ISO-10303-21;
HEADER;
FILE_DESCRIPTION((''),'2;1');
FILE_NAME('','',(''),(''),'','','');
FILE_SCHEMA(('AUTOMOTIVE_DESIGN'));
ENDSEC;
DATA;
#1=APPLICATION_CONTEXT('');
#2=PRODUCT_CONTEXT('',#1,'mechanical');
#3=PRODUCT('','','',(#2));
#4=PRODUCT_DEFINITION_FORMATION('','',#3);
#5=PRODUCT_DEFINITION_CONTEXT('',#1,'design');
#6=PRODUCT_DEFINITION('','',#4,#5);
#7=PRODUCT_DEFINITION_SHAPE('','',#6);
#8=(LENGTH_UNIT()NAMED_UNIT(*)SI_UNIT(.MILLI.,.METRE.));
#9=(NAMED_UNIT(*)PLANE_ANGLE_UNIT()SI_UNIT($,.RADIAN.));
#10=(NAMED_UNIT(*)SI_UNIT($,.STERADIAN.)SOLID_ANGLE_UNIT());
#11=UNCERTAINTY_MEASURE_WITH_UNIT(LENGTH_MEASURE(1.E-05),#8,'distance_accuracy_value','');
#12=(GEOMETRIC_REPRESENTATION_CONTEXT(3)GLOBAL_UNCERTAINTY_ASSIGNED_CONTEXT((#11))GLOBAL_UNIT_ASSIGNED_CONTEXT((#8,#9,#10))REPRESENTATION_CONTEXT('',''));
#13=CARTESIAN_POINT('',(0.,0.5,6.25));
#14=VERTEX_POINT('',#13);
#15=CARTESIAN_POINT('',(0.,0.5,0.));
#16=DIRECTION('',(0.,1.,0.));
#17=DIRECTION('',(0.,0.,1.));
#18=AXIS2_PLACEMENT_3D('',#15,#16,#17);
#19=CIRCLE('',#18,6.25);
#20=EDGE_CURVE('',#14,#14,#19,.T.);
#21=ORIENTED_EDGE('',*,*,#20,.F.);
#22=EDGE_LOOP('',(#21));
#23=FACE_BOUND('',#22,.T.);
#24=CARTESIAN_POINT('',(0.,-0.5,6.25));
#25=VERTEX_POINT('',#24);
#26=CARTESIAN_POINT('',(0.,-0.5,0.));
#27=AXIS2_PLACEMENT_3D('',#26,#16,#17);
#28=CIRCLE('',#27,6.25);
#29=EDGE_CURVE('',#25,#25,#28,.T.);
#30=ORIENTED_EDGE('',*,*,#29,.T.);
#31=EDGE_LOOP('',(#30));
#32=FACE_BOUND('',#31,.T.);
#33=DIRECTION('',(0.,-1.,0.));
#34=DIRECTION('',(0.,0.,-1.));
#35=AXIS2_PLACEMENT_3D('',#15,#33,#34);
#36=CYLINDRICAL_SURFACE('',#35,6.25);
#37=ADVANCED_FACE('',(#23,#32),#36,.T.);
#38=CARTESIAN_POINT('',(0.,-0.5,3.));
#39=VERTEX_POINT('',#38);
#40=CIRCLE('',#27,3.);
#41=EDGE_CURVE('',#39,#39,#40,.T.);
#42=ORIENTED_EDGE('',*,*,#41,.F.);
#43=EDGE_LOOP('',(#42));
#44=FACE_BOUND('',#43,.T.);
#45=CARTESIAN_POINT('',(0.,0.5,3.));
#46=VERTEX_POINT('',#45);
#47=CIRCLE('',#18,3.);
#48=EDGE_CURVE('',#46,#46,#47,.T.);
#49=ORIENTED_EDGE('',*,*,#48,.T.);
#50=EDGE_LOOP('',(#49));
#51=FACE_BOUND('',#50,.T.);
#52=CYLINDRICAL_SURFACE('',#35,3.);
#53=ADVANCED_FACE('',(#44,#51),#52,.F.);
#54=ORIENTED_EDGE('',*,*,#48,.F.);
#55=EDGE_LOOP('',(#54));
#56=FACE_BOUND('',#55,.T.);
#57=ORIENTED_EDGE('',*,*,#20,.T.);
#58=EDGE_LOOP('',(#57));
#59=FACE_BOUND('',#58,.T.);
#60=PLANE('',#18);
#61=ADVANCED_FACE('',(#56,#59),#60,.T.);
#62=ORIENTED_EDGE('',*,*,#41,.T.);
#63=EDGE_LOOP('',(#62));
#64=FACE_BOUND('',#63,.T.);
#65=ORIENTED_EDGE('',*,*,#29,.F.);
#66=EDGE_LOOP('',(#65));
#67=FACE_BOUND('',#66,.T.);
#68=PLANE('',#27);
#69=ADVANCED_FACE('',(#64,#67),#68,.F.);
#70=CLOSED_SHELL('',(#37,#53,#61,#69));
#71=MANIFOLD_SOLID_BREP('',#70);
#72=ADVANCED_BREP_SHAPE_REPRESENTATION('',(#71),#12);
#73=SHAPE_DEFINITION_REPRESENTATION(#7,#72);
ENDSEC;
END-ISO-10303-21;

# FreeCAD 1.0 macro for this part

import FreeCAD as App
import Part
import Sketcher

doc = App.newDocument("Part")
body = doc.addObject("PartDesign::Body", "Body")

sketch1 = body.newObject("Sketcher::SketchObject", "Sketch")
sketch1.AttachmentSupport = (doc.getObject("XZ_Plane"), [""])
sketch1.MapMode = "FlatFace"
sketch1.addGeometry([
    Part.Circle(App.Vector(0, 0, 0), App.Vector(0, 0, 1), 6.2),
    Part.Circle(App.Vector(0, 0, 0), App.Vector(0, 0, 1), 3),
], False)
sketch1.addConstraint([
    Sketcher.Constraint("Coincident", 0, 3, -1, 1),
    Sketcher.Constraint("Coincident", 1, 3, -1, 1),
    Sketcher.Constraint("Diameter", 1, 6.0),
    Sketcher.Constraint("Diameter", 0, 12.5),
])
pad1 = body.newObject("PartDesign::Pad", "Pad")
pad1.Profile = sketch1
pad1.Length = 1
pad1.Midplane = True

doc.recompute()
